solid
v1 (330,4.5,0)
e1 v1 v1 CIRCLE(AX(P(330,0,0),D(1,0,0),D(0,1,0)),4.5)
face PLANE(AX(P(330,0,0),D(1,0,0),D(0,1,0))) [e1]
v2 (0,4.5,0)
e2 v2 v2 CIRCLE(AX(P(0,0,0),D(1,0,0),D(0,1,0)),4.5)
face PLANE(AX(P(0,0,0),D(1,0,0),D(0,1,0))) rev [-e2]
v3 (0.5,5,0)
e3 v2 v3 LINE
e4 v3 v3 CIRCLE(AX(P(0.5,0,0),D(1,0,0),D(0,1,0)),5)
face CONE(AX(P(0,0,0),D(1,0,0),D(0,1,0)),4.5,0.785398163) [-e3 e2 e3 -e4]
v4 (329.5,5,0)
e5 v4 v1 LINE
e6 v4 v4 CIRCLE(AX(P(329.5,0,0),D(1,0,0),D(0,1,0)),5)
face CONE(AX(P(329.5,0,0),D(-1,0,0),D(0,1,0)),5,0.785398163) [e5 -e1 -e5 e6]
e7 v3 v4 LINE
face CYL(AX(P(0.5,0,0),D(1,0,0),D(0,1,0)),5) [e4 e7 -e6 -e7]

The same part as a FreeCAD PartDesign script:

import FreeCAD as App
import Part
import Sketcher


def add_polygon(sketch, points):
    """Adds a closed chain of lines whose ends are joined by coincident constraints."""
    first, n = sketch.GeometryCount, len(points)
    for a, b in zip(points, points[1:] + points[:1]):
        sketch.addGeometry(Part.LineSegment(App.Vector(*a, 0), App.Vector(*b, 0)), False)
    for i in range(n):
        sketch.addConstraint(Sketcher.Constraint("Coincident", first + i, 2, first + (i + 1) % n, 1))

doc = App.newDocument("Part")
body = doc.addObject("PartDesign::Body", "Body")

# Sketch on XY plane
sketch1 = body.newObject("Sketcher::SketchObject", "Sketch")
sketch1.AttachmentSupport = (doc.getObject("XY_Plane"), [""])
sketch1.MapMode = "FlatFace"
add_polygon(sketch1, [(0, 0), (330, 0), (330, 4.5), (329.5, 5), (0.5, 5), (0, 4.5)])  # lines 0-5
sketch1.addConstraint([
    Sketcher.Constraint("Horizontal", 0),
    Sketcher.Constraint("Vertical", 1),
    Sketcher.Constraint("Horizontal", 3),
    Sketcher.Constraint("Vertical", 5),
    Sketcher.Constraint("Coincident", 5, 2, -1, 1),
    Sketcher.Constraint("Perpendicular", 2, 4),
    Sketcher.Constraint("Horizontal", 1, 2, 4, 2),
    Sketcher.Constraint("Equal", 2, 4),
    Sketcher.Constraint("DistanceX", 0, 1, 0, 2, 330.0),
    Sketcher.Constraint("DistanceX", 3, 2, 3, 1, 329.0),
    Sketcher.Constraint("DistanceY", 1, 1, 1, 2, 4.5),
])
revolution = body.newObject("PartDesign::Revolution", "Revolution")
revolution.Profile = sketch1
revolution.ReferenceAxis = (sketch1, ["H_Axis"])
revolution.Angle = 360

doc.recompute()
